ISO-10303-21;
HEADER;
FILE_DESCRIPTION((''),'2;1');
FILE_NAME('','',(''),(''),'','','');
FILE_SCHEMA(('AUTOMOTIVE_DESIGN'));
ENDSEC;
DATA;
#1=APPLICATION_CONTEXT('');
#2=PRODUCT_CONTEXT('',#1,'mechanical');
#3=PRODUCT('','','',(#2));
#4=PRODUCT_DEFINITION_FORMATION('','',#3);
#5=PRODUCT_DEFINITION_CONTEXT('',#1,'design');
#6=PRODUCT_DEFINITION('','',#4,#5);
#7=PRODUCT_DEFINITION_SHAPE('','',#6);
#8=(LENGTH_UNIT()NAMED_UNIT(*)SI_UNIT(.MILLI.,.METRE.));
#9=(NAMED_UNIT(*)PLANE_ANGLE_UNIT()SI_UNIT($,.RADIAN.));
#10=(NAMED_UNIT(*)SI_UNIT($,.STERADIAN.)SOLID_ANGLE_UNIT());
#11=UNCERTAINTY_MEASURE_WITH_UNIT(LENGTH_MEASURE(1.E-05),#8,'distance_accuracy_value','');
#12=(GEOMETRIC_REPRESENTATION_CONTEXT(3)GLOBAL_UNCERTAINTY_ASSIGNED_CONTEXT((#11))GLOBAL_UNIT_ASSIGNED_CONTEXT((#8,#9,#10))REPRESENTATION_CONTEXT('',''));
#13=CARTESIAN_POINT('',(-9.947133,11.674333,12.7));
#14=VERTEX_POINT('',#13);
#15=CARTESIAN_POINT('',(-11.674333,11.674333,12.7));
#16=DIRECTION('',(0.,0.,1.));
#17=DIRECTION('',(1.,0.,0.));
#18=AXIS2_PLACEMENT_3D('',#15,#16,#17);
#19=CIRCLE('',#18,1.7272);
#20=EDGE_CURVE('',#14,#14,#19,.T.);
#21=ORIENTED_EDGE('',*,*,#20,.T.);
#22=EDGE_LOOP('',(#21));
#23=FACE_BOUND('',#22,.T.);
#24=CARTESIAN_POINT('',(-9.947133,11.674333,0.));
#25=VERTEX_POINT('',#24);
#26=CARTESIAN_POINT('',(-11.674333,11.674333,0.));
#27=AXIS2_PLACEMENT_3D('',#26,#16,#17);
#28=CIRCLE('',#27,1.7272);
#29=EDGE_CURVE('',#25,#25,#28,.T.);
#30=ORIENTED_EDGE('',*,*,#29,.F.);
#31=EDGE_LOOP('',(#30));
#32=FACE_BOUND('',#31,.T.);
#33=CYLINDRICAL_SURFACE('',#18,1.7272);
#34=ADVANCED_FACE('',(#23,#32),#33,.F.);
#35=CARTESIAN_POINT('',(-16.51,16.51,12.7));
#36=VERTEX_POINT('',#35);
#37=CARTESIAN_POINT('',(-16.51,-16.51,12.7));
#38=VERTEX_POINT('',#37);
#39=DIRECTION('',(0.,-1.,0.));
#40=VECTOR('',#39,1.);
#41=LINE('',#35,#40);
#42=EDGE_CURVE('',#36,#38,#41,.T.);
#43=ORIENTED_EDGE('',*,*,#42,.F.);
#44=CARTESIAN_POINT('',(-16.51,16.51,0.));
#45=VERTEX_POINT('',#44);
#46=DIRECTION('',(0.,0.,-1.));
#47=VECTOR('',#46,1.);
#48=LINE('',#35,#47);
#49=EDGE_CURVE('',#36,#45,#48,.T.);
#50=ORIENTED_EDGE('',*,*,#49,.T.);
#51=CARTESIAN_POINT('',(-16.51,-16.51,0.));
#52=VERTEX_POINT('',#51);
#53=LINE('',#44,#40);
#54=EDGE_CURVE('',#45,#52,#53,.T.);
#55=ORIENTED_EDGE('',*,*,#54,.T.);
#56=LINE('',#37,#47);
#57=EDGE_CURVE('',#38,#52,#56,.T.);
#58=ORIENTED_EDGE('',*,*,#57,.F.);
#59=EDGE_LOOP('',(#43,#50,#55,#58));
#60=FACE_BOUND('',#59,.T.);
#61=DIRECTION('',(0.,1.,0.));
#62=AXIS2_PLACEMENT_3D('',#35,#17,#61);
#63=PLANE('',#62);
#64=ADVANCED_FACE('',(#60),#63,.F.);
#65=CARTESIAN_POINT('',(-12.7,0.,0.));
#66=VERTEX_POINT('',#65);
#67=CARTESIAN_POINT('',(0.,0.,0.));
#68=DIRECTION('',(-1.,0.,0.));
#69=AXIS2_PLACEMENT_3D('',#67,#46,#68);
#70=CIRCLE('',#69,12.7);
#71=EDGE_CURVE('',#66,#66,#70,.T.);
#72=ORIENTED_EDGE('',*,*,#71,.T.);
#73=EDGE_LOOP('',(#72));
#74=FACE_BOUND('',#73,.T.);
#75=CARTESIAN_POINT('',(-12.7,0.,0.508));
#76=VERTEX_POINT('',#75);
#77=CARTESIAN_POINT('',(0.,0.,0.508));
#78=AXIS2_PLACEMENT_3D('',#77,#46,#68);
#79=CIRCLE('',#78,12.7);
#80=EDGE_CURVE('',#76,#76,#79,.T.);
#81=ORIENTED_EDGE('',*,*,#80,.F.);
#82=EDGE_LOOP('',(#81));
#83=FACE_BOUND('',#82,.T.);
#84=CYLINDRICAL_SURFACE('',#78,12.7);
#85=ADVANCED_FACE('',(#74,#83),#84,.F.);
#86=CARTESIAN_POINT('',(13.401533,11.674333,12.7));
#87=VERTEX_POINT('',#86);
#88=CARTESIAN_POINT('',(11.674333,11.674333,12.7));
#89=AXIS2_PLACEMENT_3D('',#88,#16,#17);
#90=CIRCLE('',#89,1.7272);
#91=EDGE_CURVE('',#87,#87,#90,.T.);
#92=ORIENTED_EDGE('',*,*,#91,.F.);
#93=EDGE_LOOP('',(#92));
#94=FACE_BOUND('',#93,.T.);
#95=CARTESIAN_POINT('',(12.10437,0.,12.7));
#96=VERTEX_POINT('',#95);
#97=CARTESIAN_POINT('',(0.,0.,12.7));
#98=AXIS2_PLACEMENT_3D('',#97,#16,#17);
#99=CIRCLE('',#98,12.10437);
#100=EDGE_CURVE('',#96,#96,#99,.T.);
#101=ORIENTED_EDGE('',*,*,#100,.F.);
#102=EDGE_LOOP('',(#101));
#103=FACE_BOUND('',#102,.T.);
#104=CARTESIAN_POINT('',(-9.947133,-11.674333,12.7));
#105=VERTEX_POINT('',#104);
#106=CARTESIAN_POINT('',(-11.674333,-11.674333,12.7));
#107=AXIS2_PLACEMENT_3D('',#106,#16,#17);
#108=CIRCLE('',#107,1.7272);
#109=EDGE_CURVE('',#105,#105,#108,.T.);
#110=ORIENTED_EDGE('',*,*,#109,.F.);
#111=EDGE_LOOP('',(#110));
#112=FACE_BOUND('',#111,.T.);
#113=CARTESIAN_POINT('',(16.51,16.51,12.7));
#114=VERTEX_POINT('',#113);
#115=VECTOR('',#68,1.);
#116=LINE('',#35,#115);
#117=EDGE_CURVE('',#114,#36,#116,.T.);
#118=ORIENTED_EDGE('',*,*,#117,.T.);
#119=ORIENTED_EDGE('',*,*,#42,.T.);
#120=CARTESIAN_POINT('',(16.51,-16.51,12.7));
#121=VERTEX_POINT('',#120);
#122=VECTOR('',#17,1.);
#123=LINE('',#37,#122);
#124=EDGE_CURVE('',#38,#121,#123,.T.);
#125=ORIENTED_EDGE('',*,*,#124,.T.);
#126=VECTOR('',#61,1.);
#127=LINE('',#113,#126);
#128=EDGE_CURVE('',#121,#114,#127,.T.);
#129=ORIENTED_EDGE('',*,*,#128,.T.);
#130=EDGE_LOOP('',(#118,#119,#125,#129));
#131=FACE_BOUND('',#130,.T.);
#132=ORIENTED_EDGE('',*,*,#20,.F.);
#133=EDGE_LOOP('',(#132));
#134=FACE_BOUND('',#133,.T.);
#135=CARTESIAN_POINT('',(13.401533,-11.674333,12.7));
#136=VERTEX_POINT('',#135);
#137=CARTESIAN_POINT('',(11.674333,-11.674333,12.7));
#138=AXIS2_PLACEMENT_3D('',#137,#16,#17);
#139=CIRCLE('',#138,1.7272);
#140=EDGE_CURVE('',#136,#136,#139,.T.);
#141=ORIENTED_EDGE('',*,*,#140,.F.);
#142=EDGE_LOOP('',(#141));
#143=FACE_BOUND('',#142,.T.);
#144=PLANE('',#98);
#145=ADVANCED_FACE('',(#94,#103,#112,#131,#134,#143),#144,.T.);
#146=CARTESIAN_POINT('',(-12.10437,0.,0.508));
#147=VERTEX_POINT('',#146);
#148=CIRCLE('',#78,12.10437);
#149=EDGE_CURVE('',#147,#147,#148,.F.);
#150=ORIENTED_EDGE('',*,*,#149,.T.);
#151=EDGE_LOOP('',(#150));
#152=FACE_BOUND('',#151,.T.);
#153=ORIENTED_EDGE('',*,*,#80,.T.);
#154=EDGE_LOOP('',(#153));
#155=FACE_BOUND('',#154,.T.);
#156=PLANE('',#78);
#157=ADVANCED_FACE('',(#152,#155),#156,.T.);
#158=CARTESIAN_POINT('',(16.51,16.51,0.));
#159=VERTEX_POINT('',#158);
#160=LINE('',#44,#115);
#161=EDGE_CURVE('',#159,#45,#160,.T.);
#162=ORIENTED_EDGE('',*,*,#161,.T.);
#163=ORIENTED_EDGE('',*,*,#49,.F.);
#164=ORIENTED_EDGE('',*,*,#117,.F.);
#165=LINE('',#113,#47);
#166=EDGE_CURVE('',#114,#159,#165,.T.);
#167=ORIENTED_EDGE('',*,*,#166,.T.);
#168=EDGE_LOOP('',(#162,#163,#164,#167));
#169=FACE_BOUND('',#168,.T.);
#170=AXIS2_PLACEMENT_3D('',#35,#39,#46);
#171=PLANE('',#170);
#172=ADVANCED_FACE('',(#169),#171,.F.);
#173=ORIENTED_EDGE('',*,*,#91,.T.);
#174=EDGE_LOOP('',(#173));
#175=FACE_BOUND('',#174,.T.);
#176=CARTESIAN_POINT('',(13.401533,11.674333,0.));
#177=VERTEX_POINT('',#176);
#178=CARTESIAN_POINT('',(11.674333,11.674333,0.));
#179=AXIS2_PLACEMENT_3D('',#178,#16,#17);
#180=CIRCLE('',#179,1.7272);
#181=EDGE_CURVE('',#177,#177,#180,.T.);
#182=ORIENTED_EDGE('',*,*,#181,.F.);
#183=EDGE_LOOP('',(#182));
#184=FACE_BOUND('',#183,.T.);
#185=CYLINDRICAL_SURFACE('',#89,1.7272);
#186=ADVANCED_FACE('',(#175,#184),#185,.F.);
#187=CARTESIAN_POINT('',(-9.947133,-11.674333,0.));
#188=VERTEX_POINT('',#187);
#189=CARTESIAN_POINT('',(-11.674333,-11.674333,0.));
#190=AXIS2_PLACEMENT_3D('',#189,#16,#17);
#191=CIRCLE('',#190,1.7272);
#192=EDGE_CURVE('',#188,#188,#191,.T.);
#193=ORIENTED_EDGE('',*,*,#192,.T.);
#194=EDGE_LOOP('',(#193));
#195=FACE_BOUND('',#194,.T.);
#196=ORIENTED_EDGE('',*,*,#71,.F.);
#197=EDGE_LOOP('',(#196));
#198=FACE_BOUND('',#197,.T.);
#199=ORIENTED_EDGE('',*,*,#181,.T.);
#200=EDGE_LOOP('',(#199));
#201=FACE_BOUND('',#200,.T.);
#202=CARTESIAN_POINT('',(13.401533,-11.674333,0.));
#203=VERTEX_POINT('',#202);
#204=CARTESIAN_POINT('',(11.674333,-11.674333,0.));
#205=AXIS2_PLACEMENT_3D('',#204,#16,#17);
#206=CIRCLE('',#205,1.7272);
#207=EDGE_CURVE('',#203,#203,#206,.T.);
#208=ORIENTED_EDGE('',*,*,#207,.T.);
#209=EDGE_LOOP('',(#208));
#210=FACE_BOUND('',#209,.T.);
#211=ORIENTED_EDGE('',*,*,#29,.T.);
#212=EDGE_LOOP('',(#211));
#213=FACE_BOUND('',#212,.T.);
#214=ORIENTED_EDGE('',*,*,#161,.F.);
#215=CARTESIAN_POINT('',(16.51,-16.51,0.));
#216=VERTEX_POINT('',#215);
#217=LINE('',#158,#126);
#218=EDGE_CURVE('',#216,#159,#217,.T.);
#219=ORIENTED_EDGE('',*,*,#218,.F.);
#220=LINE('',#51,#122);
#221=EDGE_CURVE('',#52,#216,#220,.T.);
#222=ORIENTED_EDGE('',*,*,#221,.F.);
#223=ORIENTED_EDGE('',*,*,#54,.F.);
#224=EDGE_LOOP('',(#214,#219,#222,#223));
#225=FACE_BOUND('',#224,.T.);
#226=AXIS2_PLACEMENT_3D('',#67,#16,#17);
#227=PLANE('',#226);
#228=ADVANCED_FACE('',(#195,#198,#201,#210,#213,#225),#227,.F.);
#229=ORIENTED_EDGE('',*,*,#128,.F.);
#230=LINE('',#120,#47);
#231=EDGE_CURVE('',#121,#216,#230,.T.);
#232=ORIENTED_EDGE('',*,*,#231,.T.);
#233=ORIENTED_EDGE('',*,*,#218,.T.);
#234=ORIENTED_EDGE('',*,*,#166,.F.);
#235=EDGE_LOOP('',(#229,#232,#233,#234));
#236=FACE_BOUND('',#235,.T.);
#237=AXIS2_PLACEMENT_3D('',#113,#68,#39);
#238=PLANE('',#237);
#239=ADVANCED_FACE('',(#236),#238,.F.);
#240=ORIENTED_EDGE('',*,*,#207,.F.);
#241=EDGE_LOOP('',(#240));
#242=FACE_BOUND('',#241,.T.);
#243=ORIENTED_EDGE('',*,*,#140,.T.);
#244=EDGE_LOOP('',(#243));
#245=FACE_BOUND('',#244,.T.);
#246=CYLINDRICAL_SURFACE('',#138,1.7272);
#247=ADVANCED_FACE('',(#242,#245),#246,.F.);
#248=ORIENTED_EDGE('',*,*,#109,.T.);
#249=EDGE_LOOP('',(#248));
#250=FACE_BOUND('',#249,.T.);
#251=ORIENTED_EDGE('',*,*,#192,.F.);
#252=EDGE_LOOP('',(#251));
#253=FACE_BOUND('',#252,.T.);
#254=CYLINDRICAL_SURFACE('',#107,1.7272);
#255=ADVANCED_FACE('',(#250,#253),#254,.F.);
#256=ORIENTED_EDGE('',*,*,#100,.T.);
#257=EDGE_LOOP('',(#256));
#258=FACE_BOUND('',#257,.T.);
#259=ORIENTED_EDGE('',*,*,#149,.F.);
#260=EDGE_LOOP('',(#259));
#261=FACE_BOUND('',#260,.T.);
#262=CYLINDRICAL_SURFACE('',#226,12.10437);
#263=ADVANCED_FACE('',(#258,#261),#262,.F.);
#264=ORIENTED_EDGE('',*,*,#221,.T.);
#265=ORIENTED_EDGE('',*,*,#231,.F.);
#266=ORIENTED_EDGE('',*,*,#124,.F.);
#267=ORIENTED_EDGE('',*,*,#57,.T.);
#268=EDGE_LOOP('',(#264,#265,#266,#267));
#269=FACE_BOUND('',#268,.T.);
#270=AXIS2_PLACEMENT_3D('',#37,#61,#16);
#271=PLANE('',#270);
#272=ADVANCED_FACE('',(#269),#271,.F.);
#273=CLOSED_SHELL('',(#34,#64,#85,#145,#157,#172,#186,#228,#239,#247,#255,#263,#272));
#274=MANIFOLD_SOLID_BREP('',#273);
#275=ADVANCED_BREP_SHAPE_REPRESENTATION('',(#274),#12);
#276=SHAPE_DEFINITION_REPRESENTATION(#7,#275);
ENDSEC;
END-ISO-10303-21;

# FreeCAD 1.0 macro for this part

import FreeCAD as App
import Part
import Sketcher

V = App.Vector
Q = App.Units.Quantity

doc = App.newDocument("Part")
params = doc.addObject("Spreadsheet::Sheet", "Params")
for row, (alias, value) in enumerate([
    ("sketch1_width", "1.3 in"),
    ("pad1_length", "0.5 in"),
    ("sketch3_diameter", "0.136 in"),
    ("hole_diameter", "0.136 in"),
    ("sketch4_diameter", "1 in"),
    ("pocket2_length", "0.02 in"),
], start=1):
    params.set(f"A{row}", alias)
    params.set(f"B{row}", "=" + value)
    params.setAlias(f"B{row}", alias)

body = doc.addObject("PartDesign::Body", "Body")

# Sketch on XY plane
sketch1 = doc.addObject("Sketcher::SketchObject", "Sketch")
body.addObject(sketch1)
sketch1.AttachmentSupport = (doc.XY_Plane, [""])
sketch1.MapMode = "FlatFace"
sketch1.addGeometry([
    Part.LineSegment(V(-17, 17, 0), V(-17, -17, 0)),
    Part.LineSegment(V(-17, -17, 0), V(17, -17, 0)),
    Part.LineSegment(V(17, -17, 0), V(17, 17, 0)),
    Part.LineSegment(V(17, 17, 0), V(-17, 17, 0)),
], False)
sketch1.addConstraint([
    Sketcher.Constraint("Coincident", 0, 2, 1, 1),
    Sketcher.Constraint("Coincident", 1, 2, 2, 1),
    Sketcher.Constraint("Coincident", 2, 2, 3, 1),
    Sketcher.Constraint("Coincident", 3, 2, 0, 1),
    Sketcher.Constraint("Vertical", 0),
    Sketcher.Constraint("Horizontal", 1),
    Sketcher.Constraint("Vertical", 2),
    Sketcher.Constraint("Horizontal", 3),
    Sketcher.Constraint("Symmetric", 0, 2, 2, 2, -1, 1),
    Sketcher.Constraint("Equal", 3, 0),
    Sketcher.Constraint("DistanceX", 1, 1, 1, 2, Q("1.3 in")),
])
sketch1.setExpression("Constraints[10]", "Params.sketch1_width")
pad1 = doc.addObject("PartDesign::Pad", "Pad")
body.addObject(pad1)
pad1.Profile = sketch1
pad1.setExpression("Length", "Params.pad1_length")

# Sketch on XY plane
sketch2 = doc.addObject("Sketcher::SketchObject", "Sketch001")
body.addObject(sketch2)
sketch2.AttachmentSupport = (doc.XY_Plane, [""])
sketch2.MapMode = "FlatFace"
sketch2.AttachmentOffset = App.Placement(V(0, 0, 0.5 * 25.4), App.Rotation())
sketch2.addGeometry(Part.Circle(V(0, 0, 0), V(0, 0, 1), 12), False)
sketch2.addConstraint([
    Sketcher.Constraint("Coincident", 0, 3, -1, 1),
    Sketcher.Constraint("Diameter", 0, Q("0.9531 in")),
])
pocket1 = doc.addObject("PartDesign::Pocket", "Pocket")
body.addObject(pocket1)
pocket1.Profile = sketch2
pocket1.Type = "ThroughAll"

# Sketch on XY plane
sketch3 = doc.addObject("Sketcher::SketchObject", "Sketch002")
body.addObject(sketch3)
sketch3.AttachmentSupport = (doc.XY_Plane, [""])
sketch3.MapMode = "FlatFace"
sketch3.AttachmentOffset = App.Placement(V(0, 0, 0.5 * 25.4), App.Rotation())
sketch3.addGeometry([
    Part.Circle(V(-11.7, 11.7, 0), V(0, 0, 1), 1.7),
    Part.Circle(V(11.7, 11.7, 0), V(0, 0, 1), 1.7),
    Part.Circle(V(11.7, -11.7, 0), V(0, 0, 1), 1.7),
    Part.Circle(V(-11.7, -11.7, 0), V(0, 0, 1), 1.7),
], False)
sketch3.addConstraint([
    Sketcher.Constraint("Equal", 0, 1),
    Sketcher.Constraint("Equal", 1, 2),
    Sketcher.Constraint("Equal", 2, 3),
    Sketcher.Constraint("Symmetric", 0, 3, 2, 3, -1, 1),
    Sketcher.Constraint("Symmetric", 1, 3, 3, 3, -1, 1),
    Sketcher.Constraint("Symmetric", 0, 3, 1, 3, -2),
    Sketcher.Constraint("Diameter", 0, Q("0.136 in")),
    Sketcher.Constraint("DistanceX", 0, 3, -1, 1, 11.674333),
    Sketcher.Constraint("DistanceY", -1, 1, 0, 3, 11.674333),
])
sketch3.setExpression("Constraints[6]", "Params.sketch3_diameter")
doc.recompute()
hole = doc.addObject("PartDesign::Hole", "Hole")
body.addObject(hole)
hole.Profile = sketch3
hole.ThreadType = "None"
hole.setExpression("Diameter", "Params.hole_diameter")
hole.DepthType = "ThroughAll"

# Sketch on XY plane
sketch4 = doc.addObject("Sketcher::SketchObject", "Sketch003")
body.addObject(sketch4)
sketch4.AttachmentSupport = (doc.XY_Plane, [""])
sketch4.MapMode = "FlatFace"
sketch4.addGeometry(Part.Circle(V(0, 0, 0), V(0, 0, 1), 13), False)
sketch4.addConstraint([
    Sketcher.Constraint("Coincident", 0, 3, -1, 1),
    Sketcher.Constraint("Diameter", 0, Q("1 in")),
])
sketch4.setExpression("Constraints[1]", "Params.sketch4_diameter")
pocket2 = doc.addObject("PartDesign::Pocket", "Pocket001")
body.addObject(pocket2)
pocket2.Profile = sketch4
pocket2.setExpression("Length", "Params.pocket2_length")
pocket2.Reversed = True

doc.recompute()
